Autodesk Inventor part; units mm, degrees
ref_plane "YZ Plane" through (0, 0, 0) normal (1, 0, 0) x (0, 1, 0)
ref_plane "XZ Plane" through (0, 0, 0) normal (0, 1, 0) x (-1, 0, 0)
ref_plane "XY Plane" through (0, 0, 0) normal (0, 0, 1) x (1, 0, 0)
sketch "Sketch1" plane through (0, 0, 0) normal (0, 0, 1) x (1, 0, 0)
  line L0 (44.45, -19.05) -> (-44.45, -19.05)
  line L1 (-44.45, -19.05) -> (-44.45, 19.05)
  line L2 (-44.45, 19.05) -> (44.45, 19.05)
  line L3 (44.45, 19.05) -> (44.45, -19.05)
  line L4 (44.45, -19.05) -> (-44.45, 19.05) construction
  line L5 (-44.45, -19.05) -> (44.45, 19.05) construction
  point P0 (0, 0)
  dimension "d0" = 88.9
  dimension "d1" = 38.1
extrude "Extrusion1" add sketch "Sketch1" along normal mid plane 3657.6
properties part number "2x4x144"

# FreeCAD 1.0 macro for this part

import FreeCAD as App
import Part
import Sketcher
Q = App.Units.Quantity


def add_polygon(sketch, points):
    """Adds a closed chain of lines whose ends are joined by coincident constraints."""
    first, n = sketch.GeometryCount, len(points)
    for a, b in zip(points, points[1:] + points[:1]):
        sketch.addGeometry(Part.LineSegment(App.Vector(*a, 0), App.Vector(*b, 0)), False)
    for i in range(n):
        sketch.addConstraint(Sketcher.Constraint("Coincident", first + i, 2, first + (i + 1) % n, 1))

doc = App.newDocument("Part")
body = doc.addObject("PartDesign::Body", "Body")

# Sketch on XY plane
sketch1 = doc.addObject("Sketcher::SketchObject", "Sketch")
body.addObject(sketch1)
sketch1.AttachmentSupport = (doc.XY_Plane, [""])
sketch1.MapMode = "FlatFace"
add_polygon(sketch1, [(-44, -19), (44, -19), (44, 19), (-44, 19)])  # lines 0-3
sketch1.addConstraint([
    Sketcher.Constraint("Horizontal", 0),
    Sketcher.Constraint("Vertical", 1),
    Sketcher.Constraint("Horizontal", 2),
    Sketcher.Constraint("Vertical", 3),
    Sketcher.Constraint("Symmetric", 0, 2, 2, 2, -1, 1),
    Sketcher.Constraint("DistanceX", 0, 1, 0, 2, Q("3.5 in")),
    Sketcher.Constraint("DistanceY", 1, 1, 1, 2, Q("1.5 in")),
])
pad1 = doc.addObject("PartDesign::Pad", "Pad")
body.addObject(pad1)
pad1.Profile = sketch1
pad1.Length = Q("144 in")
pad1.Midplane = True

doc.recompute()
